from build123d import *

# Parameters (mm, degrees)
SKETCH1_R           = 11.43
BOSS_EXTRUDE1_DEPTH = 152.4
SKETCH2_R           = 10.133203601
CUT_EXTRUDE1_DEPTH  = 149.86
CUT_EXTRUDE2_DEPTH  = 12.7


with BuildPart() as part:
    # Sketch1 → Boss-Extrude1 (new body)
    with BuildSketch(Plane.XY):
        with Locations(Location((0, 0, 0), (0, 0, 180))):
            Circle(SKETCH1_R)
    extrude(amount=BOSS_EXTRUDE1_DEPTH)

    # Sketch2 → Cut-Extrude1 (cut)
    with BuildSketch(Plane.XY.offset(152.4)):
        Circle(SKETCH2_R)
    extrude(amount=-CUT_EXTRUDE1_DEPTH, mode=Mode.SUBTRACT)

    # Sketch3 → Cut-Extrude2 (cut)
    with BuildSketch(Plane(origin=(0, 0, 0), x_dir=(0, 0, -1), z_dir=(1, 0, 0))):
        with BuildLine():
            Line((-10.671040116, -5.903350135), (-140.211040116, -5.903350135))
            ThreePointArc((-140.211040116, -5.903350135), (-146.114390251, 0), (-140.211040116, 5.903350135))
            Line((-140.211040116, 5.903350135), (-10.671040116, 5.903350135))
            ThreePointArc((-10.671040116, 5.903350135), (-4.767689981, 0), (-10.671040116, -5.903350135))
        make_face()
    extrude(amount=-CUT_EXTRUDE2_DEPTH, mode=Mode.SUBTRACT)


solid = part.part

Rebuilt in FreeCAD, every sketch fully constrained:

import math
import FreeCAD as App
import Part
import Sketcher
Q = App.Units.Quantity

doc = App.newDocument("Part")
params = doc.addObject("Spreadsheet::Sheet", "Params")
for row, (alias, value) in enumerate([
    ("sketch1_diameter", "0.9 in"),
    ("pad1_length", "6 in"),
    ("pocket1_length", "5.9 in"),
    ("sketch3_height", "5.1 in"),
    ("pocket2_length", "0.5 in"),
], start=1):
    params.set(f"A{row}", alias)
    params.set(f"B{row}", "=" + value)
    params.setAlias(f"B{row}", alias)

body = doc.addObject("PartDesign::Body", "Body")

sketch1 = body.newObject("Sketcher::SketchObject", "Sketch")
sketch1.AttachmentSupport = (doc.getObject("XY_Plane"), [""])
sketch1.MapMode = "FlatFace"
sketch1.addGeometry(Part.Circle(App.Vector(0, 0, 0), App.Vector(0, 0, 1), 11.43), False)
sketch1.addConstraint([
    Sketcher.Constraint("Coincident", 0, 3, -1, 1),
    Sketcher.Constraint("Diameter", 0, Q("0.9 in")),
])
sketch1.setExpression("Constraints[1]", "Params.sketch1_diameter")
pad1 = body.newObject("PartDesign::Pad", "Pad")
pad1.Profile = sketch1
pad1.setExpression("Length", "Params.pad1_length")

sketch2 = body.newObject("Sketcher::SketchObject", "Sketch001")
sketch2.AttachmentSupport = (doc.getObject("XY_Plane"), [""])
sketch2.MapMode = "FlatFace"
sketch2.AttachmentOffset = App.Placement(App.Vector(0, 0, 6 * 25.4), App.Rotation())
sketch2.addGeometry(Part.Circle(App.Vector(0, 0, 0), App.Vector(0, 0, 1), 10.133204), False)
sketch2.addConstraint([
    Sketcher.Constraint("Coincident", 0, 3, -1, 1),
    Sketcher.Constraint("Diameter", 0, Q("20.266407 mm")),
])
pocket1 = body.newObject("PartDesign::Pocket", "Pocket")
pocket1.Profile = sketch2
pocket1.setExpression("Length", "Params.pocket1_length")

sketch3 = body.newObject("Sketcher::SketchObject", "Sketch002")
sketch3.AttachmentSupport = (doc.getObject("YZ_Plane"), [""])
sketch3.MapMode = "FlatFace"
sketch3.addGeometry([
    Part.LineSegment(App.Vector(-5.90335, 140.21104, 0), App.Vector(-5.90335, 10.67104, 0)),
    Part.ArcOfCircle(Part.Circle(App.Vector(0, 10.67104, 0), App.Vector(0, 0, 1), 5.90335), math.radians(180), math.radians(360)),
    Part.LineSegment(App.Vector(5.90335, 10.67104, 0), App.Vector(5.90335, 140.21104, 0)),
    Part.ArcOfCircle(Part.Circle(App.Vector(0, 140.21104, 0), App.Vector(0, 0, 1), 5.90335), math.radians(0), math.radians(180)),
], False)
sketch3.addConstraint([
    Sketcher.Constraint("Tangent", 0, 2, 1, 1),
    Sketcher.Constraint("Tangent", 1, 2, 2, 1),
    Sketcher.Constraint("Tangent", 2, 2, 3, 1),
    Sketcher.Constraint("Tangent", 3, 2, 0, 1),
    Sketcher.Constraint("Vertical", 0),
    Sketcher.Constraint("Vertical", 2),
    Sketcher.Constraint("PointOnObject", 1, 3, -2),
    Sketcher.Constraint("DistanceY", 0, 2, 0, 1, Q("5.1 in")),
    Sketcher.Constraint("Radius", 1, Q("5.90335 mm")),
    Sketcher.Constraint("DistanceY", -1, 1, 1, 3, Q("10.67104 mm")),
])
sketch3.setExpression("Constraints[7]", "Params.sketch3_height")
pocket2 = body.newObject("PartDesign::Pocket", "Pocket001")
pocket2.Profile = sketch3
pocket2.setExpression("Length", "Params.pocket2_length")

doc.recompute()
